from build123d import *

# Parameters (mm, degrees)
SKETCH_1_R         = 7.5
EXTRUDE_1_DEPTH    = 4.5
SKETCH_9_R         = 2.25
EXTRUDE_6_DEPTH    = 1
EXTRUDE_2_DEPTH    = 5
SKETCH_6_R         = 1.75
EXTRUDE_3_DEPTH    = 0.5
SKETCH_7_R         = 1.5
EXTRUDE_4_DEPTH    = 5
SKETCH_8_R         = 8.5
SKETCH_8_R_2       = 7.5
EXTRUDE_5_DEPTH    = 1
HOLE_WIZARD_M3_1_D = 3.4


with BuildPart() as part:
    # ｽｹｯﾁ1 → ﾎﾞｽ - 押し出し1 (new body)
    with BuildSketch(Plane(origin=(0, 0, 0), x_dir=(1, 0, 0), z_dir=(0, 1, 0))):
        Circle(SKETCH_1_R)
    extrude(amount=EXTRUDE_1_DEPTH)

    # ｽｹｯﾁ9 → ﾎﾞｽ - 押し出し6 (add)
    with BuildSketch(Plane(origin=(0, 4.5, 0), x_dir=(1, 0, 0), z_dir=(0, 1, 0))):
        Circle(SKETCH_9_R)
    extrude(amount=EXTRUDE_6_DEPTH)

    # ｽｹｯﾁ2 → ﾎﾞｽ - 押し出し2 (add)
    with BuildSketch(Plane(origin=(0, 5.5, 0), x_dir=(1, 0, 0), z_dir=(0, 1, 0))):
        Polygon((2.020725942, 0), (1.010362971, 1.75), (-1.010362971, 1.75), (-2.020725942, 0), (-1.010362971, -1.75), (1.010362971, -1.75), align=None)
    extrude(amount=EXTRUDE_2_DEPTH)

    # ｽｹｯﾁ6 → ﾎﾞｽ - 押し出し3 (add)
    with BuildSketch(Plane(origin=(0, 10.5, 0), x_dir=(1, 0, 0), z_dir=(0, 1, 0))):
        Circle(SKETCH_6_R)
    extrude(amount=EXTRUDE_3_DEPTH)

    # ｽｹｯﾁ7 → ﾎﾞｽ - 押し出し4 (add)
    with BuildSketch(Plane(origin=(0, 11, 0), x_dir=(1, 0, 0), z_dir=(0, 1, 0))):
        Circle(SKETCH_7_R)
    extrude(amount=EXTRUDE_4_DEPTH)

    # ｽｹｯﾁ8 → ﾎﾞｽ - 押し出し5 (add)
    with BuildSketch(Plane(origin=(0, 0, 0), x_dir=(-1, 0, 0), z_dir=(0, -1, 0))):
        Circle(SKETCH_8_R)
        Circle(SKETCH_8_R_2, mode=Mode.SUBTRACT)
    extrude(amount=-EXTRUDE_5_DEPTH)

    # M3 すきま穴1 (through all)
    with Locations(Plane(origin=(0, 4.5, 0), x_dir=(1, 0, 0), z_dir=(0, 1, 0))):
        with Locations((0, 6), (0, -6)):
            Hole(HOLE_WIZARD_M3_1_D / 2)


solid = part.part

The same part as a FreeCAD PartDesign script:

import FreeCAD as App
import Part
import Sketcher
Q = App.Units.Quantity

doc = App.newDocument("Part")
body = doc.addObject("PartDesign::Body", "Body")

# Sketch on XZ plane
sketch1 = body.newObject("Sketcher::SketchObject", "Sketch")
sketch1.AttachmentSupport = (doc.getObject("XZ_Plane"), [""])
sketch1.MapMode = "FlatFace"
sketch1.addGeometry(Part.Circle(App.Vector(0, 0, 0), App.Vector(0, 0, 1), 8), False)
sketch1.addConstraint(Sketcher.Constraint("Coincident", 0, 3, -1, 1))
sketch1.addConstraint(Sketcher.Constraint("Diameter", 0, Q("15 mm")))
pad1 = body.newObject("PartDesign::Pad", "Pad")
pad1.Profile = sketch1
pad1.Length = 4.5
pad1.Reversed = True

# Sketch on XZ plane
sketch2 = body.newObject("Sketcher::SketchObject", "Sketch001")
sketch2.AttachmentSupport = (doc.getObject("XZ_Plane"), [""])
sketch2.MapMode = "FlatFace"
sketch2.AttachmentOffset = App.Placement(App.Vector(0, 0, -4.5), App.Rotation())
sketch2.addGeometry(Part.Circle(App.Vector(0, 0, 0), App.Vector(0, 0, 1), 2.2), False)
sketch2.addConstraint(Sketcher.Constraint("Coincident", 0, 3, -1, 1))
sketch2.addConstraint(Sketcher.Constraint("Diameter", 0, Q("4.5 mm")))
pad2 = body.newObject("PartDesign::Pad", "Pad001")
pad2.Profile = sketch2
pad2.Length = 1
pad2.Reversed = True

# Sketch on XZ plane
sketch3 = body.newObject("Sketcher::SketchObject", "Sketch002")
sketch3.AttachmentSupport = (doc.getObject("XZ_Plane"), [""])
sketch3.MapMode = "FlatFace"
sketch3.AttachmentOffset = App.Placement(App.Vector(0, 0, -5.5), App.Rotation())
sketch3.addGeometry(Part.LineSegment(App.Vector(2, 0, 0), App.Vector(1, -1.8, 0)), False)
sketch3.addGeometry(Part.LineSegment(App.Vector(1, -1.8, 0), App.Vector(-1, -1.8, 0)), False)
sketch3.addGeometry(Part.LineSegment(App.Vector(-1, -1.8, 0), App.Vector(-2, 0, 0)), False)
sketch3.addGeometry(Part.LineSegment(App.Vector(-2, 0, 0), App.Vector(-1, 1.8, 0)), False)
sketch3.addGeometry(Part.LineSegment(App.Vector(-1, 1.8, 0), App.Vector(1, 1.8, 0)), False)
sketch3.addGeometry(Part.LineSegment(App.Vector(1, 1.8, 0), App.Vector(2, 0, 0)), False)
sketch3.addConstraint(Sketcher.Constraint("Coincident", 0, 2, 1, 1))
sketch3.addConstraint(Sketcher.Constraint("Coincident", 1, 2, 2, 1))
sketch3.addConstraint(Sketcher.Constraint("Coincident", 2, 2, 3, 1))
sketch3.addConstraint(Sketcher.Constraint("Coincident", 3, 2, 4, 1))
sketch3.addConstraint(Sketcher.Constraint("Coincident", 4, 2, 5, 1))
sketch3.addConstraint(Sketcher.Constraint("Coincident", 5, 2, 0, 1))
sketch3.addConstraint(Sketcher.Constraint("Horizontal", 1))
sketch3.addConstraint(Sketcher.Constraint("Horizontal", 4))
sketch3.addConstraint(Sketcher.Constraint("Symmetric", 0, 2, 3, 2, -1, 1))
sketch3.addConstraint(Sketcher.Constraint("Symmetric", 2, 2, 5, 2, -1, 1))
sketch3.addConstraint(Sketcher.Constraint("PointOnObject", 2, 2, -1))
sketch3.addConstraint(Sketcher.Constraint("Parallel", 2, 5))
sketch3.addConstraint(Sketcher.Constraint("Vertical", 1, 2, 3, 2))
sketch3.addConstraint(Sketcher.Constraint("Angle", 0, Q("-120 deg")))
sketch3.addConstraint(Sketcher.Constraint("DistanceY", 1, 2, 3, 2, Q("3.5 mm")))
sketch3.addConstraint(Sketcher.Constraint("DistanceX", 1, 2, 1, 1, Q("2.020726 mm")))
pad3 = body.newObject("PartDesign::Pad", "Pad002")
pad3.Profile = sketch3
pad3.Length = 5
pad3.Reversed = True

# Sketch on XZ plane
sketch4 = body.newObject("Sketcher::SketchObject", "Sketch003")
sketch4.AttachmentSupport = (doc.getObject("XZ_Plane"), [""])
sketch4.MapMode = "FlatFace"
sketch4.AttachmentOffset = App.Placement(App.Vector(0, 0, -10.5), App.Rotation())
sketch4.addGeometry(Part.Circle(App.Vector(0, 0, 0), App.Vector(0, 0, 1), 1.8), False)
sketch4.addConstraint(Sketcher.Constraint("Coincident", 0, 3, -1, 1))
sketch4.addConstraint(Sketcher.Constraint("Diameter", 0, Q("3.5 mm")))
pad4 = body.newObject("PartDesign::Pad", "Pad003")
pad4.Profile = sketch4
pad4.Length = 0.5
pad4.Reversed = True

# Sketch on XZ plane
sketch5 = body.newObject("Sketcher::SketchObject", "Sketch004")
sketch5.AttachmentSupport = (doc.getObject("XZ_Plane"), [""])
sketch5.MapMode = "FlatFace"
sketch5.AttachmentOffset = App.Placement(App.Vector(0, 0, -11), App.Rotation())
sketch5.addGeometry(Part.Circle(App.Vector(0, 0, 0), App.Vector(0, 0, 1), 1.5), False)
sketch5.addConstraint(Sketcher.Constraint("Coincident", 0, 3, -1, 1))
sketch5.addConstraint(Sketcher.Constraint("Diameter", 0, Q("3 mm")))
pad5 = body.newObject("PartDesign::Pad", "Pad004")
pad5.Profile = sketch5
pad5.Length = 5
pad5.Reversed = True

# Sketch on XZ plane
sketch6 = body.newObject("Sketcher::SketchObject", "Sketch005")
sketch6.AttachmentSupport = (doc.getObject("XZ_Plane"), [""])
sketch6.MapMode = "FlatFace"
sketch6.addGeometry(Part.Circle(App.Vector(0, 0, 0), App.Vector(0, 0, 1), 8), False)
sketch6.addGeometry(Part.Circle(App.Vector(0, 0, 0), App.Vector(0, 0, 1), 8), False)
sketch6.addConstraint(Sketcher.Constraint("Coincident", 0, 3, -1, 1))
sketch6.addConstraint(Sketcher.Constraint("Coincident", 1, 3, -1, 1))
sketch6.addConstraint(Sketcher.Constraint("Diameter", 0, Q("17 mm")))
sketch6.addConstraint(Sketcher.Constraint("Diameter", 1, Q("15 mm")))
pad6 = body.newObject("PartDesign::Pad", "Pad005")
pad6.Profile = sketch6
pad6.Length = 1
pad6.Reversed = True

# Sketch on XZ plane
sketch7 = body.newObject("Sketcher::SketchObject", "Sketch006")
sketch7.AttachmentSupport = (doc.getObject("XZ_Plane"), [""])
sketch7.MapMode = "FlatFace"
sketch7.AttachmentOffset = App.Placement(App.Vector(0, 0, -4.5), App.Rotation())
sketch7.addGeometry(Part.Circle(App.Vector(0, -6, 0), App.Vector(0, 0, 1), 1.7), False)
sketch7.addGeometry(Part.Circle(App.Vector(0, 6, 0), App.Vector(0, 0, 1), 1.7), False)
sketch7.addConstraint(Sketcher.Constraint("Equal", 0, 1))
sketch7.addConstraint(Sketcher.Constraint("Symmetric", 0, 3, 1, 3, -1, 1))
sketch7.addConstraint(Sketcher.Constraint("PointOnObject", 0, 3, -2))
sketch7.addConstraint(Sketcher.Constraint("Diameter", 0, Q("3.4 mm")))
sketch7.addConstraint(Sketcher.Constraint("DistanceY", 0, 3, -1, 1, Q("6 mm")))
doc.recompute()
hole = body.newObject("PartDesign::Hole", "Hole")
hole.Profile = sketch7
hole.ThreadType = "None"
hole.Diameter = 3.4
hole.DepthType = "ThroughAll"
hole.Reversed = True

doc.recompute()
